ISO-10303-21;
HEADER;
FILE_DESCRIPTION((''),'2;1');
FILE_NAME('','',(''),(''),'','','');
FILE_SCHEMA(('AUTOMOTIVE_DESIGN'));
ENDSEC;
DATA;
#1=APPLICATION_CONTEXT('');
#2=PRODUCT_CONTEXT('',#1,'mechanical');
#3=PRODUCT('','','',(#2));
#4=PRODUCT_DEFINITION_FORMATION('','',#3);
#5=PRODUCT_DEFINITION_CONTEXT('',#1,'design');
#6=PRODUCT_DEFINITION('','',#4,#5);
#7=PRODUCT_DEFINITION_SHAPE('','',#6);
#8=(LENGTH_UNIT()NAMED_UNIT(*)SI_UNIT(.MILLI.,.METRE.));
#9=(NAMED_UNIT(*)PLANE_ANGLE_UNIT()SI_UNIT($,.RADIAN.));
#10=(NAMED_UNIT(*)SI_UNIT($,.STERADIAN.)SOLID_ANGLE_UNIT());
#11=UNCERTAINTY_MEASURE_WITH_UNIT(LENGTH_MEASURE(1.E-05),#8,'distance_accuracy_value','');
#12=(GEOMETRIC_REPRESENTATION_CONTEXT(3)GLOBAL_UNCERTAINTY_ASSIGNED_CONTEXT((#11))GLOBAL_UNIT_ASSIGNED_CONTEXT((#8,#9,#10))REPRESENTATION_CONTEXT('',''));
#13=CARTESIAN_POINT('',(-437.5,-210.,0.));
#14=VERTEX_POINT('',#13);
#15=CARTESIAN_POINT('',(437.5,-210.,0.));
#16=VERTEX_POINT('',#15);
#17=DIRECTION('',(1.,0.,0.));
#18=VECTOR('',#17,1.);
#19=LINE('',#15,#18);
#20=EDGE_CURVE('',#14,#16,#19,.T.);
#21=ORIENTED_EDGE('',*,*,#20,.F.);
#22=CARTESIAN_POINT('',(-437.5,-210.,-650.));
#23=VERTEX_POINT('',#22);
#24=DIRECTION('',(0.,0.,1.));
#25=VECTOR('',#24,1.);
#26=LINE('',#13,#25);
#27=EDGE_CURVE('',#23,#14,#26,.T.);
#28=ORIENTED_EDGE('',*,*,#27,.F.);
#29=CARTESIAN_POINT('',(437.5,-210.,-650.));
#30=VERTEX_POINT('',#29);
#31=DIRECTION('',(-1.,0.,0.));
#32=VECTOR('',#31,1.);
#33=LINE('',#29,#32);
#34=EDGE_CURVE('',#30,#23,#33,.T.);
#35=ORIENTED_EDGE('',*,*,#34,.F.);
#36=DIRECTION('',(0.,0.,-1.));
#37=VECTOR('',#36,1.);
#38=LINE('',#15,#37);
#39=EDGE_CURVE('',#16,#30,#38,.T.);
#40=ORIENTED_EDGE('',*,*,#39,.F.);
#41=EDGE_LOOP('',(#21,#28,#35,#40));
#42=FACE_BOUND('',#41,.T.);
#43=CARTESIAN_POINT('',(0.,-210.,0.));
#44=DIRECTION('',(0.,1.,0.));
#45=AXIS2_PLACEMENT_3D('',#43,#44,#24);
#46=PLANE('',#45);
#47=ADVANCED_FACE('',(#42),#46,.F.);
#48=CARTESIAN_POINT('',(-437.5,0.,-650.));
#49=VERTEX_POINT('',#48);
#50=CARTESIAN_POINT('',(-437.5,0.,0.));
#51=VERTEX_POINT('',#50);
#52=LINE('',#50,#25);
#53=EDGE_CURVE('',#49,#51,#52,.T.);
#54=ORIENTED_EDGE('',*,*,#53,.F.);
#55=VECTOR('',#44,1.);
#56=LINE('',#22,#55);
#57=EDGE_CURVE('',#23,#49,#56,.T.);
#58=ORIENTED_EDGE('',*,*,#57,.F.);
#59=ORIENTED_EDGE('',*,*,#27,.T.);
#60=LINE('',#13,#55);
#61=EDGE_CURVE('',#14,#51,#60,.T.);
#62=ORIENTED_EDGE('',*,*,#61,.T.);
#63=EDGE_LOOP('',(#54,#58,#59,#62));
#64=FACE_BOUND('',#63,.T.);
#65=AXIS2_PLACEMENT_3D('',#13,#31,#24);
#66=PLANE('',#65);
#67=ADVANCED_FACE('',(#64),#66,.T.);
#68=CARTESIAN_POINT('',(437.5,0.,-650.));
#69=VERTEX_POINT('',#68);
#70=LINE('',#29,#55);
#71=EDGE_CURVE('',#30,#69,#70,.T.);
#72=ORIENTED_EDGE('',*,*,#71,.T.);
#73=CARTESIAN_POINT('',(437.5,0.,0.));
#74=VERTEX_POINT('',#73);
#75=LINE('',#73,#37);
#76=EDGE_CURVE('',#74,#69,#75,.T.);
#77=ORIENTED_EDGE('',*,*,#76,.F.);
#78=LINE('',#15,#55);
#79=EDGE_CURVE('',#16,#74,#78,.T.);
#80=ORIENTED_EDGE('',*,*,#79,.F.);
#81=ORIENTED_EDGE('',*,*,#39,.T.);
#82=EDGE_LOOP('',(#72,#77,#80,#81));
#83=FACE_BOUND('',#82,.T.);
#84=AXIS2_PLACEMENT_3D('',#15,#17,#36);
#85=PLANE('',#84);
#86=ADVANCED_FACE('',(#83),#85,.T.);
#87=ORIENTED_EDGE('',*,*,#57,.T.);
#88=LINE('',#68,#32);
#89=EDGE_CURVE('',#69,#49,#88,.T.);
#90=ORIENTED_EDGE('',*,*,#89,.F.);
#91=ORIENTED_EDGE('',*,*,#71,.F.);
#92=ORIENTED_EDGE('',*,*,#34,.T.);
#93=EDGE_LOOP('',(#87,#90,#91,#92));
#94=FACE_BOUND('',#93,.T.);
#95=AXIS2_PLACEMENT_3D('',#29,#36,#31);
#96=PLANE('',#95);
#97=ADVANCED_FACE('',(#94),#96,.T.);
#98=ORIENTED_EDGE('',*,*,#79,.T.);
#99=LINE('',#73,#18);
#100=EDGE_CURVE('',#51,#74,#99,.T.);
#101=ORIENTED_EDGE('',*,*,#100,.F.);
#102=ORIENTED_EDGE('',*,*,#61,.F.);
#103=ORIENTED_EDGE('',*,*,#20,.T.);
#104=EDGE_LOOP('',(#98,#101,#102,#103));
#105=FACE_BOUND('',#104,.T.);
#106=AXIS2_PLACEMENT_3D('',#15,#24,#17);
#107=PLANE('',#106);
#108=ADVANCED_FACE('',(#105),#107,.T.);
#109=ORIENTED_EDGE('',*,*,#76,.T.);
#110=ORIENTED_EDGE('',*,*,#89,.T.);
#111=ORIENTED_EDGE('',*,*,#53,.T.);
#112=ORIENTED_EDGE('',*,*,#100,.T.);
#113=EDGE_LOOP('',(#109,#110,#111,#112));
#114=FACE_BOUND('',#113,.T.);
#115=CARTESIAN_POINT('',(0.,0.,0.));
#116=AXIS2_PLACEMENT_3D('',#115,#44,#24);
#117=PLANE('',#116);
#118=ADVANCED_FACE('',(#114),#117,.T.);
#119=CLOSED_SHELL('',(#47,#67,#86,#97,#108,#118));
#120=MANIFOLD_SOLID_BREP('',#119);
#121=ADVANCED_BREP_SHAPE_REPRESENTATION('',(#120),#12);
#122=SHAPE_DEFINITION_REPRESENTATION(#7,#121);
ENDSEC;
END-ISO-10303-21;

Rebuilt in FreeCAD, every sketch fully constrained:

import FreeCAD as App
import Part
import Sketcher


def add_polygon(sketch, points):
    """Adds a closed chain of lines whose ends are joined by coincident constraints."""
    first, n = sketch.GeometryCount, len(points)
    for a, b in zip(points, points[1:] + points[:1]):
        sketch.addGeometry(Part.LineSegment(App.Vector(*a, 0), App.Vector(*b, 0)), False)
    for i in range(n):
        sketch.addConstraint(Sketcher.Constraint("Coincident", first + i, 2, first + (i + 1) % n, 1))

doc = App.newDocument("Part")
body = doc.addObject("PartDesign::Body", "Body")

sketch1 = doc.addObject("Sketcher::SketchObject", "Sketch")
body.addObject(sketch1)
sketch1.AttachmentSupport = (doc.XZ_Plane, [""])
sketch1.MapMode = "FlatFace"
add_polygon(sketch1, [(-438, -650), (-438, 0), (438, 0), (438, -650)])
sketch1.addConstraint([
    Sketcher.Constraint("Vertical", 0),
    Sketcher.Constraint("Horizontal", 1),
    Sketcher.Constraint("Vertical", 2),
    Sketcher.Constraint("Horizontal", 3),
    Sketcher.Constraint("Symmetric", 0, 2, 1, 2, -1, 1),
    Sketcher.Constraint("DistanceX", 1, 1, 1, 2, 875.0),
    Sketcher.Constraint("DistanceY", 0, 1, 0, 2, 650.0),
])
pad1 = doc.addObject("PartDesign::Pad", "Pad")
body.addObject(pad1)
pad1.Profile = sketch1
pad1.Length = 210

doc.recompute()
